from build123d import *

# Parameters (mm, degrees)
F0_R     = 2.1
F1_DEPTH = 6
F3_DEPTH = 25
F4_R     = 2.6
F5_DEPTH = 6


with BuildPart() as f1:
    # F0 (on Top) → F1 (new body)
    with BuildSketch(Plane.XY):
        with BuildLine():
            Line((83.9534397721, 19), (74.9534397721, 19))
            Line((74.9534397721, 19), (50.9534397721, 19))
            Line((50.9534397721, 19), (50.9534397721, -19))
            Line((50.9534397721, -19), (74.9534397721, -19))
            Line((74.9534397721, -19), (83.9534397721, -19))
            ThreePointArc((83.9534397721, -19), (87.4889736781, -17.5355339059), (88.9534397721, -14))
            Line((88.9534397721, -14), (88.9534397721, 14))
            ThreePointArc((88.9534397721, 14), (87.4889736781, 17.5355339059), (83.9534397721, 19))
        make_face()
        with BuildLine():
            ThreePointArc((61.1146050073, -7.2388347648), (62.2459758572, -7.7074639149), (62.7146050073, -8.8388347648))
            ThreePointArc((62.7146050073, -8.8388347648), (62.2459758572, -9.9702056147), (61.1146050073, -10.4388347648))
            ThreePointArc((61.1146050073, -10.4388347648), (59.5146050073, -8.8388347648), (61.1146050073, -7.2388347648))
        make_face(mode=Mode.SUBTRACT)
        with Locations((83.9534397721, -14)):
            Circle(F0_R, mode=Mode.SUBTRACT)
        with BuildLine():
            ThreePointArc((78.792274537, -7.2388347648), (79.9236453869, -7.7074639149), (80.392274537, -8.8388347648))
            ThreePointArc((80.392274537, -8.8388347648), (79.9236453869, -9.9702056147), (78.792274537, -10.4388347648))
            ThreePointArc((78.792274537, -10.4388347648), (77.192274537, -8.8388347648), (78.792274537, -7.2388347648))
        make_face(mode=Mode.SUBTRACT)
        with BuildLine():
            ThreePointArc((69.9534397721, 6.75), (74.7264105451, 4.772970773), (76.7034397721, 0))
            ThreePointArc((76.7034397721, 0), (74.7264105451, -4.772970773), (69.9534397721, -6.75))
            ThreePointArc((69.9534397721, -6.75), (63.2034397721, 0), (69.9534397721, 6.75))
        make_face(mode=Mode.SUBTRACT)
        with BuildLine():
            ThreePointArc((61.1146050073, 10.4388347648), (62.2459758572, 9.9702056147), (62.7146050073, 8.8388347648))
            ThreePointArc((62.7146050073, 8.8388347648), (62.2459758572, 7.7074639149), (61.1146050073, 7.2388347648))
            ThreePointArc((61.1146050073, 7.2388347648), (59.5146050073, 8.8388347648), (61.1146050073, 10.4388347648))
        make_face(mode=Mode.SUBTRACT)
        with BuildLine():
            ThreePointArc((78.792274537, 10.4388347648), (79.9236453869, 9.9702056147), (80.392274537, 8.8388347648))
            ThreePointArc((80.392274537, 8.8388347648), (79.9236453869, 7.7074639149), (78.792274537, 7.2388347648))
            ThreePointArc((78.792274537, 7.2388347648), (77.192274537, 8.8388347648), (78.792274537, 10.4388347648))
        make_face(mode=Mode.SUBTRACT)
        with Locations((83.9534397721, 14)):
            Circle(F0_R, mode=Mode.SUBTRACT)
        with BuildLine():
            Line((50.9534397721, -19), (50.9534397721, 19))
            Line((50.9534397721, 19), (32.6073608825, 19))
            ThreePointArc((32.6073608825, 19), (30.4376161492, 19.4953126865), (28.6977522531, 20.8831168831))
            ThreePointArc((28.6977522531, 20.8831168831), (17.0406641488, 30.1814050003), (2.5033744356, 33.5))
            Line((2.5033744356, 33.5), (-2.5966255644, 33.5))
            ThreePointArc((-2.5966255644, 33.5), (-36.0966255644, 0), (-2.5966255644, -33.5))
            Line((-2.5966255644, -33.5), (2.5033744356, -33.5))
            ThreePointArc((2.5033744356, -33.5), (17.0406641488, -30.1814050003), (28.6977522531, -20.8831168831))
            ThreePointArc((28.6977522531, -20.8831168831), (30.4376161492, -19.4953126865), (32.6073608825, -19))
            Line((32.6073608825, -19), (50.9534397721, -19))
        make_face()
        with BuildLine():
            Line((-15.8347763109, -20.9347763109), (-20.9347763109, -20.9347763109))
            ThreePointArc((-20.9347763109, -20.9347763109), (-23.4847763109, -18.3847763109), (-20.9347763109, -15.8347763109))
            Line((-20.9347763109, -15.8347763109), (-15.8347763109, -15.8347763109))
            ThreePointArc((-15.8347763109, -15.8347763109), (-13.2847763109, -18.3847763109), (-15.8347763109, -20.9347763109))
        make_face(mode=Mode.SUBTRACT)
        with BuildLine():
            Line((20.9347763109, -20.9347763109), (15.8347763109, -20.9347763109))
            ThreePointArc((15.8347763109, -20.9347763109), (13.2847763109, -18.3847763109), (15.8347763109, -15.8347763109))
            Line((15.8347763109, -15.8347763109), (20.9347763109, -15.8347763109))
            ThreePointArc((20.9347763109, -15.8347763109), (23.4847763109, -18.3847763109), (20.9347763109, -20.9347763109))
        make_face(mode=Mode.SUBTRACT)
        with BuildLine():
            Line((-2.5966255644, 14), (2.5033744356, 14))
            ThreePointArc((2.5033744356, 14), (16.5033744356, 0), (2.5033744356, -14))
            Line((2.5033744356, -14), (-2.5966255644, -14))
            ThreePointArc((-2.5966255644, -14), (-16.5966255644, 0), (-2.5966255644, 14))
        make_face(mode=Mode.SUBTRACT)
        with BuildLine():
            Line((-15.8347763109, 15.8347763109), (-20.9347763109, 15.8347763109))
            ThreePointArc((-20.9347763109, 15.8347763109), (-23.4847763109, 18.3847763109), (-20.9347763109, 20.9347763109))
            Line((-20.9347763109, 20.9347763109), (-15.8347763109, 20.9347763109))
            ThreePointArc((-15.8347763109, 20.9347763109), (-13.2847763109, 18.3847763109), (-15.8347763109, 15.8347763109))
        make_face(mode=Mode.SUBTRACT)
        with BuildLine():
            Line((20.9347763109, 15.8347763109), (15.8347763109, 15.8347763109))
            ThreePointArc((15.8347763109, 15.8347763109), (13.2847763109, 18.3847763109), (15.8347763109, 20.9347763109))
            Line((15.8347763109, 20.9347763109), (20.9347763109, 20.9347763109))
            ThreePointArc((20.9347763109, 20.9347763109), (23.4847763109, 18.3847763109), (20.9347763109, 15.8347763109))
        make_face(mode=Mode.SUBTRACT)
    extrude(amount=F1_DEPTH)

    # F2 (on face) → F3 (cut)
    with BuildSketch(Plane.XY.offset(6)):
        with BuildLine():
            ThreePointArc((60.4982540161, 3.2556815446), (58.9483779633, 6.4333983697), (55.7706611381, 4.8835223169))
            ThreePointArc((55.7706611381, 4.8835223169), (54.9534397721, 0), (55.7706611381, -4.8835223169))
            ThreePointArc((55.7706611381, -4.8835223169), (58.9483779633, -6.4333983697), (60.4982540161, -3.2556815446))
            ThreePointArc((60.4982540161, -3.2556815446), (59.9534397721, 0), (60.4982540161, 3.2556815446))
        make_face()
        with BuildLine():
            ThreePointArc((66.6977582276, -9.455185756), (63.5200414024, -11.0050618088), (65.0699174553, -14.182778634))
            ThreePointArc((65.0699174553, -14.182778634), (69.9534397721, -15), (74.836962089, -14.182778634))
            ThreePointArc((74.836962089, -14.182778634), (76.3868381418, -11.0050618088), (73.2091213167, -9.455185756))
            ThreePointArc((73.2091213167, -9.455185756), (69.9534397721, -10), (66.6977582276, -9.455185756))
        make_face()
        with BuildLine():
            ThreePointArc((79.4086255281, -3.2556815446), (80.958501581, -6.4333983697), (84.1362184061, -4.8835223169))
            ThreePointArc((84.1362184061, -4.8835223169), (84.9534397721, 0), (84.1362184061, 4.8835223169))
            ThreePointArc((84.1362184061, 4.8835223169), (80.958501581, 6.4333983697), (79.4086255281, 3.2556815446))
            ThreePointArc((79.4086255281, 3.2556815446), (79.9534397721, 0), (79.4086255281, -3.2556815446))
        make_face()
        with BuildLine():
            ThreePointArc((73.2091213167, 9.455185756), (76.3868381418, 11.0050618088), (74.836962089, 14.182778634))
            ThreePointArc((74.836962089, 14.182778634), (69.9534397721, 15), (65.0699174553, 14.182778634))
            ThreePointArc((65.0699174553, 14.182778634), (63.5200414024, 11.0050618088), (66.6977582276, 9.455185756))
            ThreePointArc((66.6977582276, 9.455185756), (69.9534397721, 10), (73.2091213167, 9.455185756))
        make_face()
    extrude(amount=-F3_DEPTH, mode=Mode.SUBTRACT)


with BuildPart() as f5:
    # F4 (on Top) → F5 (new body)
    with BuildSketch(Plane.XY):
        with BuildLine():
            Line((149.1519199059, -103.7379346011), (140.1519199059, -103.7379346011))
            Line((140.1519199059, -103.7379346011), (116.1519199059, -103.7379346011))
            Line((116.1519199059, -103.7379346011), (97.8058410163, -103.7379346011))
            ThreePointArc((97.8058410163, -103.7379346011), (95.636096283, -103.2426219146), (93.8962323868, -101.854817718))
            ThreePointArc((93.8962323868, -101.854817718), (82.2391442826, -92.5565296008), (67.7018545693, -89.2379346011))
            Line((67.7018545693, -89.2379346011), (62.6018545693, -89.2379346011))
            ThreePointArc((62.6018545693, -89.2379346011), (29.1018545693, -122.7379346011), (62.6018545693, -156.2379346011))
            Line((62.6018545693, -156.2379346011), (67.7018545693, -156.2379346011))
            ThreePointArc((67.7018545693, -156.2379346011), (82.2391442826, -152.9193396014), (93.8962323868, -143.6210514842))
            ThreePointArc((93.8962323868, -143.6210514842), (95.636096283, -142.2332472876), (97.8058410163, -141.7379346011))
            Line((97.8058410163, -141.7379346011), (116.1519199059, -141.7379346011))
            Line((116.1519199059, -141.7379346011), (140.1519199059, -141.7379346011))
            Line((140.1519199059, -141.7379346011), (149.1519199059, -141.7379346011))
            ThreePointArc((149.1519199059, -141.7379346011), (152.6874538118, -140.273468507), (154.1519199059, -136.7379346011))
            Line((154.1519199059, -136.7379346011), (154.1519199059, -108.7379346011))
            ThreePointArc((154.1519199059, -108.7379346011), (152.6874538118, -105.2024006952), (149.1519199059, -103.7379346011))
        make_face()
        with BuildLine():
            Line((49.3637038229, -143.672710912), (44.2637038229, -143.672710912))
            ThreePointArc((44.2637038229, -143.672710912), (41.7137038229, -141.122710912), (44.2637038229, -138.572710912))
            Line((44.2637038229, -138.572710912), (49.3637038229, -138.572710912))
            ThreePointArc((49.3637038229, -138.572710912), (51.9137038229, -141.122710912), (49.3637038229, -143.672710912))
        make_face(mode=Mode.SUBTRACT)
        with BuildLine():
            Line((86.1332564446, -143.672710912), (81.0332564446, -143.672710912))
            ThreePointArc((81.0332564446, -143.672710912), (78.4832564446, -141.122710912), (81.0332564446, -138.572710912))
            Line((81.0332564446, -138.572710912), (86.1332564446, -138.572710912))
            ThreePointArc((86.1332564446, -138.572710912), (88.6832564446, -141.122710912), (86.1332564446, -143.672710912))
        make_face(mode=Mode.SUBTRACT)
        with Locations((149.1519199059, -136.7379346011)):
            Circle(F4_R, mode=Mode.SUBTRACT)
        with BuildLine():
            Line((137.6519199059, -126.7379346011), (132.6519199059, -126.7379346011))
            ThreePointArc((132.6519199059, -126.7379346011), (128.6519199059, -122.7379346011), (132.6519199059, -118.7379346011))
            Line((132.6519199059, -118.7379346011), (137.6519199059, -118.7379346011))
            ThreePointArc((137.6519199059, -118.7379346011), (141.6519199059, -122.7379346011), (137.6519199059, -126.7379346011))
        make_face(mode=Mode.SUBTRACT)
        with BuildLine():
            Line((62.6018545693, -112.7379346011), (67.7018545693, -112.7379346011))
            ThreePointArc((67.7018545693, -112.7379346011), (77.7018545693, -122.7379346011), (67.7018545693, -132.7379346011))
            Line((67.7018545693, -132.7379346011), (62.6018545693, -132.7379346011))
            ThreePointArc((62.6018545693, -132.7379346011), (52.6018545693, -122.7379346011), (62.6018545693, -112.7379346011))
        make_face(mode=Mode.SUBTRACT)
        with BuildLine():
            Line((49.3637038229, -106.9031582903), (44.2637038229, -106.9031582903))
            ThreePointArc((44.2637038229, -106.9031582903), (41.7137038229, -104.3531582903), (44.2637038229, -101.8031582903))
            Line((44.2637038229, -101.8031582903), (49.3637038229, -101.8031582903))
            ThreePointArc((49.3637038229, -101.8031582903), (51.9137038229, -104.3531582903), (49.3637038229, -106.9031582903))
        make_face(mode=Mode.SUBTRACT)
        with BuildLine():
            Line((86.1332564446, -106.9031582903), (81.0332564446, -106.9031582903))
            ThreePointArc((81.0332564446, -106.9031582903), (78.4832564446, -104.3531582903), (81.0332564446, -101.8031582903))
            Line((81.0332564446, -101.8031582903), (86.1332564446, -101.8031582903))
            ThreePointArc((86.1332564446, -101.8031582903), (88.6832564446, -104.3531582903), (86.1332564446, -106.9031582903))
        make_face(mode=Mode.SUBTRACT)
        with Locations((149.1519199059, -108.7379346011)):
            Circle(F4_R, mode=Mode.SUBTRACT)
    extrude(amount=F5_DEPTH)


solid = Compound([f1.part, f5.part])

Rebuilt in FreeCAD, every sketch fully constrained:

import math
import FreeCAD as App
import Part
import Sketcher

V = App.Vector
Q = App.Units.Quantity

doc = App.newDocument("Part")
body = doc.addObject("PartDesign::Body", "Body")

# Sketch on XY plane
sketch1 = body.newObject("Sketcher::SketchObject", "Sketch")
sketch1.AttachmentSupport = (doc.getObject("XY_Plane"), [""])
sketch1.MapMode = "FlatFace"
sketch1.addGeometry(Part.LineSegment(V(84, 19, 0), V(32.6, 19, 0)), False)
sketch1.addGeometry(Part.ArcOfCircle(Part.Circle(V(32.6, 24, 0), V(0, 0, 1), 5), math.radians(-141), math.radians(-90)), False)
sketch1.addGeometry(Part.ArcOfCircle(Part.Circle(V(2.5, 0, 0), V(0, 0, 1), 33.5), math.radians(39), math.radians(90)), False)
sketch1.addGeometry(Part.LineSegment(V(2.5, 33.5, 0), V(-2.6, 33.5, 0)), False)
sketch1.addGeometry(Part.ArcOfCircle(Part.Circle(V(-2.6, 0, 0), V(0, 0, 1), 33.5), math.radians(90), math.radians(270)), False)
sketch1.addGeometry(Part.LineSegment(V(-2.6, -33.5, 0), V(2.5, -33.5, 0)), False)
sketch1.addGeometry(Part.ArcOfCircle(Part.Circle(V(2.5, 0, 0), V(0, 0, 1), 33.5), math.radians(-90), math.radians(-39)), False)
sketch1.addGeometry(Part.ArcOfCircle(Part.Circle(V(32.6, -24, 0), V(0, 0, 1), 5), math.radians(90), math.radians(141)), False)
sketch1.addGeometry(Part.LineSegment(V(32.6, -19, 0), V(84, -19, 0)), False)
sketch1.addGeometry(Part.ArcOfCircle(Part.Circle(V(84, -14, 0), V(0, 0, 1), 5), math.radians(-90), math.radians(0)), False)
sketch1.addGeometry(Part.LineSegment(V(89, -14, 0), V(89, 14, 0)), False)
sketch1.addGeometry(Part.ArcOfCircle(Part.Circle(V(84, 14, 0), V(0, 0, 1), 5), math.radians(0), math.radians(90)), False)
sketch1.addGeometry(Part.ArcOfCircle(Part.Circle(V(-15.8, -18.4, 0), V(0, 0, 1), 2.5), math.radians(-90), math.radians(90)), False)
sketch1.addGeometry(Part.LineSegment(V(-15.8, -20.9, 0), V(-20.9, -20.9, 0)), False)
sketch1.addGeometry(Part.ArcOfCircle(Part.Circle(V(-20.9, -18.4, 0), V(0, 0, 1), 2.5), math.radians(90), math.radians(270)), False)
sketch1.addGeometry(Part.LineSegment(V(-20.9, -15.8, 0), V(-15.8, -15.8, 0)), False)
sketch1.addGeometry(Part.ArcOfCircle(Part.Circle(V(20.9, -18.4, 0), V(0, 0, 1), 2.5), math.radians(-90), math.radians(90)), False)
sketch1.addGeometry(Part.LineSegment(V(20.9, -20.9, 0), V(15.8, -20.9, 0)), False)
sketch1.addGeometry(Part.ArcOfCircle(Part.Circle(V(15.8, -18.4, 0), V(0, 0, 1), 2.5), math.radians(90), math.radians(270)), False)
sketch1.addGeometry(Part.LineSegment(V(15.8, -15.8, 0), V(20.9, -15.8, 0)), False)
sketch1.addGeometry(Part.Circle(V(84, -14, 0), V(0, 0, 1), 2.1), False)
sketch1.addGeometry(Part.ArcOfCircle(Part.Circle(V(61.1, -8.8, 0), V(0, 0, 1), 1.6), math.radians(90), math.radians(270)), False)
sketch1.addGeometry(Part.ArcOfCircle(Part.Circle(V(61.1, -8.8, 0), V(0, 0, 1), 1.6), math.radians(0), math.radians(90)), False)
sketch1.addGeometry(Part.ArcOfCircle(Part.Circle(V(61.1, -8.8, 0), V(0, 0, 1), 1.6), math.radians(-90), math.radians(0)), False)
sketch1.addGeometry(Part.ArcOfCircle(Part.Circle(V(78.8, -8.8, 0), V(0, 0, 1), 1.6), math.radians(90), math.radians(270)), False)
sketch1.addGeometry(Part.ArcOfCircle(Part.Circle(V(78.8, -8.8, 0), V(0, 0, 1), 1.6), math.radians(0), math.radians(90)), False)
sketch1.addGeometry(Part.ArcOfCircle(Part.Circle(V(78.8, -8.8, 0), V(0, 0, 1), 1.6), math.radians(-90), math.radians(0)), False)
sketch1.addGeometry(Part.ArcOfCircle(Part.Circle(V(-2.6, 0, 0), V(0, 0, 1), 14), math.radians(90), math.radians(270)), False)
sketch1.addGeometry(Part.LineSegment(V(-2.6, 14, 0), V(2.5, 14, 0)), False)
sketch1.addGeometry(Part.ArcOfCircle(Part.Circle(V(2.5, 0, 0), V(0, 0, 1), 14), math.radians(-90), math.radians(90)), False)
sketch1.addGeometry(Part.LineSegment(V(2.5, -14, 0), V(-2.6, -14, 0)), False)
sketch1.addGeometry(Part.ArcOfCircle(Part.Circle(V(-15.8, 18.4, 0), V(0, 0, 1), 2.5), math.radians(-90), math.radians(90)), False)
sketch1.addGeometry(Part.LineSegment(V(-15.8, 15.8, 0), V(-20.9, 15.8, 0)), False)
sketch1.addGeometry(Part.ArcOfCircle(Part.Circle(V(-20.9, 18.4, 0), V(0, 0, 1), 2.5), math.radians(90), math.radians(270)), False)
sketch1.addGeometry(Part.LineSegment(V(-20.9, 20.9, 0), V(-15.8, 20.9, 0)), False)
sketch1.addGeometry(Part.ArcOfCircle(Part.Circle(V(20.9, 18.4, 0), V(0, 0, 1), 2.5), math.radians(-90), math.radians(90)), False)
sketch1.addGeometry(Part.LineSegment(V(20.9, 15.8, 0), V(15.8, 15.8, 0)), False)
sketch1.addGeometry(Part.ArcOfCircle(Part.Circle(V(15.8, 18.4, 0), V(0, 0, 1), 2.5), math.radians(90), math.radians(270)), False)
sketch1.addGeometry(Part.LineSegment(V(15.8, 20.9, 0), V(20.9, 20.9, 0)), False)
sketch1.addGeometry(Part.ArcOfCircle(Part.Circle(V(70, 0, 0), V(0, 0, 1), 6.8), math.radians(90), math.radians(270)), False)
sketch1.addGeometry(Part.ArcOfCircle(Part.Circle(V(70, 0, 0), V(0, 0, 1), 6.8), math.radians(0), math.radians(90)), False)
sketch1.addGeometry(Part.ArcOfCircle(Part.Circle(V(70, 0, 0), V(0, 0, 1), 6.8), math.radians(-90), math.radians(0)), False)
sketch1.addGeometry(Part.ArcOfCircle(Part.Circle(V(61.1, 8.8, 0), V(0, 0, 1), 1.6), math.radians(90), math.radians(270)), False)
sketch1.addGeometry(Part.ArcOfCircle(Part.Circle(V(61.1, 8.8, 0), V(0, 0, 1), 1.6), math.radians(0), math.radians(90)), False)
sketch1.addGeometry(Part.ArcOfCircle(Part.Circle(V(61.1, 8.8, 0), V(0, 0, 1), 1.6), math.radians(-90), math.radians(0)), False)
sketch1.addGeometry(Part.ArcOfCircle(Part.Circle(V(78.8, 8.8, 0), V(0, 0, 1), 1.6), math.radians(90), math.radians(270)), False)
sketch1.addGeometry(Part.ArcOfCircle(Part.Circle(V(78.8, 8.8, 0), V(0, 0, 1), 1.6), math.radians(0), math.radians(90)), False)
sketch1.addGeometry(Part.ArcOfCircle(Part.Circle(V(78.8, 8.8, 0), V(0, 0, 1), 1.6), math.radians(-90), math.radians(0)), False)
sketch1.addGeometry(Part.Circle(V(84, 14, 0), V(0, 0, 1), 2.1), False)
sketch1.addConstraint(Sketcher.Constraint("Tangent", 0, 2, 1, 2))
sketch1.addConstraint(Sketcher.Constraint("Tangent", 1, 1, 2, 1))
sketch1.addConstraint(Sketcher.Constraint("Tangent", 2, 2, 3, 1))
sketch1.addConstraint(Sketcher.Constraint("Tangent", 3, 2, 4, 1))
sketch1.addConstraint(Sketcher.Constraint("Tangent", 4, 2, 5, 1))
sketch1.addConstraint(Sketcher.Constraint("Tangent", 5, 2, 6, 1))
sketch1.addConstraint(Sketcher.Constraint("Tangent", 6, 2, 7, 2))
sketch1.addConstraint(Sketcher.Constraint("Tangent", 7, 1, 8, 1))
sketch1.addConstraint(Sketcher.Constraint("Tangent", 8, 2, 9, 1))
sketch1.addConstraint(Sketcher.Constraint("Tangent", 9, 2, 10, 1))
sketch1.addConstraint(Sketcher.Constraint("Tangent", 10, 2, 11, 1))
sketch1.addConstraint(Sketcher.Constraint("Tangent", 11, 2, 0, 1))
sketch1.addConstraint(Sketcher.Constraint("Tangent", 12, 1, 13, 1))
sketch1.addConstraint(Sketcher.Constraint("Tangent", 13, 2, 14, 2))
sketch1.addConstraint(Sketcher.Constraint("Tangent", 14, 1, 15, 1))
sketch1.addConstraint(Sketcher.Constraint("Tangent", 15, 2, 12, 2))
sketch1.addConstraint(Sketcher.Constraint("Tangent", 16, 1, 17, 1))
sketch1.addConstraint(Sketcher.Constraint("Tangent", 17, 2, 18, 2))
sketch1.addConstraint(Sketcher.Constraint("Tangent", 18, 1, 19, 1))
sketch1.addConstraint(Sketcher.Constraint("Tangent", 19, 2, 16, 2))
sketch1.addConstraint(Sketcher.Constraint("Tangent", 21, 1, 22, 2))
sketch1.addConstraint(Sketcher.Constraint("Tangent", 22, 1, 23, 2))
sketch1.addConstraint(Sketcher.Constraint("Tangent", 23, 1, 21, 2))
sketch1.addConstraint(Sketcher.Constraint("Tangent", 24, 1, 25, 2))
sketch1.addConstraint(Sketcher.Constraint("Tangent", 25, 1, 26, 2))
sketch1.addConstraint(Sketcher.Constraint("Tangent", 26, 1, 24, 2))
sketch1.addConstraint(Sketcher.Constraint("Tangent", 27, 1, 28, 1))
sketch1.addConstraint(Sketcher.Constraint("Tangent", 28, 2, 29, 2))
sketch1.addConstraint(Sketcher.Constraint("Tangent", 29, 1, 30, 1))
sketch1.addConstraint(Sketcher.Constraint("Tangent", 30, 2, 27, 2))
sketch1.addConstraint(Sketcher.Constraint("Tangent", 31, 1, 32, 1))
sketch1.addConstraint(Sketcher.Constraint("Tangent", 32, 2, 33, 2))
sketch1.addConstraint(Sketcher.Constraint("Tangent", 33, 1, 34, 1))
sketch1.addConstraint(Sketcher.Constraint("Tangent", 34, 2, 31, 2))
sketch1.addConstraint(Sketcher.Constraint("Tangent", 35, 1, 36, 1))
sketch1.addConstraint(Sketcher.Constraint("Tangent", 36, 2, 37, 2))
sketch1.addConstraint(Sketcher.Constraint("Tangent", 37, 1, 38, 1))
sketch1.addConstraint(Sketcher.Constraint("Tangent", 38, 2, 35, 2))
sketch1.addConstraint(Sketcher.Constraint("Tangent", 39, 1, 40, 2))
sketch1.addConstraint(Sketcher.Constraint("Tangent", 40, 1, 41, 2))
sketch1.addConstraint(Sketcher.Constraint("Tangent", 41, 1, 39, 2))
sketch1.addConstraint(Sketcher.Constraint("Tangent", 42, 1, 43, 2))
sketch1.addConstraint(Sketcher.Constraint("Tangent", 43, 1, 44, 2))
sketch1.addConstraint(Sketcher.Constraint("Tangent", 44, 1, 42, 2))
sketch1.addConstraint(Sketcher.Constraint("Tangent", 45, 1, 46, 2))
sketch1.addConstraint(Sketcher.Constraint("Tangent", 46, 1, 47, 2))
sketch1.addConstraint(Sketcher.Constraint("Tangent", 47, 1, 45, 2))
sketch1.addConstraint(Sketcher.Constraint("Horizontal", 0))
sketch1.addConstraint(Sketcher.Constraint("Horizontal", 3))
sketch1.addConstraint(Sketcher.Constraint("Horizontal", 5))
sketch1.addConstraint(Sketcher.Constraint("Horizontal", 8))
sketch1.addConstraint(Sketcher.Constraint("Vertical", 10))
sketch1.addConstraint(Sketcher.Constraint("Horizontal", 13))
sketch1.addConstraint(Sketcher.Constraint("Horizontal", 15))
sketch1.addConstraint(Sketcher.Constraint("Horizontal", 17))
sketch1.addConstraint(Sketcher.Constraint("Horizontal", 19))
sketch1.addConstraint(Sketcher.Constraint("Horizontal", 28))
sketch1.addConstraint(Sketcher.Constraint("Horizontal", 30))
sketch1.addConstraint(Sketcher.Constraint("Horizontal", 32))
sketch1.addConstraint(Sketcher.Constraint("Horizontal", 34))
sketch1.addConstraint(Sketcher.Constraint("Horizontal", 36))
sketch1.addConstraint(Sketcher.Constraint("Horizontal", 38))
sketch1.addConstraint(Sketcher.Constraint("Coincident", 6, 3, 2, 3))
sketch1.addConstraint(Sketcher.Constraint("Coincident", 20, 3, 9, 3))
sketch1.addConstraint(Sketcher.Constraint("Coincident", 27, 3, 4, 3))
sketch1.addConstraint(Sketcher.Constraint("Coincident", 29, 3, 2, 3))
sketch1.addConstraint(Sketcher.Constraint("Coincident", 48, 3, 11, 3))
sketch1.addConstraint(Sketcher.Constraint("Equal", 1, 7))
sketch1.addConstraint(Sketcher.Constraint("Equal", 7, 9))
sketch1.addConstraint(Sketcher.Constraint("Equal", 9, 11))
sketch1.addConstraint(Sketcher.Constraint("Equal", 14, 16))
sketch1.addConstraint(Sketcher.Constraint("Equal", 23, 24))
sketch1.addConstraint(Sketcher.Constraint("Equal", 18, 31))
sketch1.addConstraint(Sketcher.Constraint("Equal", 33, 35))
sketch1.addConstraint(Sketcher.Constraint("Equal", 26, 42))
sketch1.addConstraint(Sketcher.Constraint("Equal", 44, 45))
sketch1.addConstraint(Sketcher.Constraint("Equal", 20, 48))
sketch1.addConstraint(Sketcher.Constraint("Symmetric", 18, 3, 31, 3, -1, 1))
sketch1.addConstraint(Sketcher.Constraint("Symmetric", 14, 3, 35, 3, -1, 1))
sketch1.addConstraint(Sketcher.Constraint("Symmetric", 14, 3, 16, 3, -2))
sketch1.addConstraint(Sketcher.Constraint("Symmetric", 1, 3, 7, 3, -1))
sketch1.addConstraint(Sketcher.Constraint("Symmetric", 21, 3, 42, 3, -1))
sketch1.addConstraint(Sketcher.Constraint("Symmetric", 24, 3, 45, 3, -1))
sketch1.addConstraint(Sketcher.Constraint("Symmetric", 39, 1, 41, 1, -1))
sketch1.addConstraint(Sketcher.Constraint("PointOnObject", 40, 1, -1))
sketch1.addConstraint(Sketcher.Constraint("Horizontal", 23, 3, 24, 3))
sketch1.addConstraint(Sketcher.Constraint("Horizontal", 26, 3, 22, 1))
sketch1.addConstraint(Sketcher.Constraint("Horizontal", 22, 1, 25, 1))
sketch1.addConstraint(Sketcher.Constraint("Horizontal", 10, 2, 27, 1))
sketch1.addConstraint(Sketcher.Constraint("Horizontal", 47, 3, 43, 1))
sketch1.addConstraint(Sketcher.Constraint("Horizontal", 43, 1, 46, 1))
sketch1.addConstraint(Sketcher.Constraint("Vertical", 12, 3, 31, 3))
sketch1.addConstraint(Sketcher.Constraint("Vertical", 14, 3, 33, 3))
sketch1.addConstraint(Sketcher.Constraint("Vertical", 18, 3, 37, 3))
sketch1.addConstraint(Sketcher.Constraint("Vertical", 44, 3, 21, 1))
sketch1.addConstraint(Sketcher.Constraint("Vertical", 21, 1, 23, 1))
sketch1.addConstraint(Sketcher.Constraint("Vertical", 47, 3, 24, 1))
sketch1.addConstraint(Sketcher.Constraint("Vertical", 24, 1, 26, 1))
sketch1.addConstraint(Sketcher.Constraint("Vertical", 41, 3, 39, 1))
sketch1.addConstraint(Sketcher.Constraint("Vertical", 23, 1, 42, 1))
sketch1.addConstraint(Sketcher.Constraint("Vertical", 42, 1, 44, 1))
sketch1.addConstraint(Sketcher.Constraint("Vertical", 26, 1, 45, 1))
sketch1.addConstraint(Sketcher.Constraint("Vertical", 45, 1, 47, 1))
sketch1.addConstraint(Sketcher.Constraint("Equal", 5, 13))
sketch1.addConstraint(Sketcher.Constraint("Radius", 1, Q("5 mm")))
sketch1.addConstraint(Sketcher.Constraint("Radius", 27, Q("14 mm")))
sketch1.addConstraint(Sketcher.Constraint("Diameter", 20, Q("4.2 mm")))
sketch1.addConstraint(Sketcher.Constraint("Radius", 2, Q("33.5 mm")))
sketch1.addConstraint(Sketcher.Constraint("Radius", 21, Q("1.6 mm")))
sketch1.addConstraint(Sketcher.Constraint("Radius", 12, Q("2.55 mm")))
sketch1.addConstraint(Sketcher.Constraint("Radius", 39, Q("6.75 mm")))
sketch1.addConstraint(Sketcher.Constraint("DistanceX", 3, 2, 3, 1, Q("5.1 mm")))
sketch1.addConstraint(Sketcher.Constraint("DistanceX", 0, 2, 0, 1, Q("51.346079 mm")))
sketch1.addConstraint(Sketcher.Constraint("DistanceX", -1, 1, 1, 3, Q("32.607361 mm")))
sketch1.addConstraint(Sketcher.Constraint("DistanceX", -1, 1, 39, 3, Q("69.95344 mm")))
sketch1.addConstraint(Sketcher.Constraint("DistanceX", 12, 3, -1, 1, Q("15.834776 mm")))
sketch1.addConstraint(Sketcher.Constraint("DistanceY", 12, 3, -1, 1, Q("18.384776 mm")))
sketch1.addConstraint(Sketcher.Constraint("DistanceX", -1, 1, 21, 3, Q("61.114605 mm")))
sketch1.addConstraint(Sketcher.Constraint("DistanceY", 21, 3, -1, 1, Q("8.838835 mm")))
sketch1.addConstraint(Sketcher.Constraint("DistanceX", -1, 1, 24, 3, Q("78.792275 mm")))
pad1 = body.newObject("PartDesign::Pad", "Pad")
pad1.Profile = sketch1
pad1.Length = 6

# Sketch on XY plane
sketch2 = body.newObject("Sketcher::SketchObject", "Sketch001")
sketch2.AttachmentSupport = (doc.getObject("XY_Plane"), [""])
sketch2.MapMode = "FlatFace"
sketch2.AttachmentOffset = App.Placement(V(0, 0, 6), App.Rotation())
sketch2.addGeometry(Part.ArcOfCircle(Part.Circle(V(58.1, 4.1, 0), V(0, 0, 1), 2.5), math.radians(-19), math.radians(161)), False)
sketch2.addGeometry(Part.ArcOfCircle(Part.Circle(V(70, 0, 0), V(0, 0, 1), 15), math.radians(161), math.radians(199)), False)
sketch2.addGeometry(Part.ArcOfCircle(Part.Circle(V(58.1, -4.1, 0), V(0, 0, 1), 2.5), math.radians(-161), math.radians(19)), False)
sketch2.addGeometry(Part.ArcOfCircle(Part.Circle(V(70, 0, 0), V(0, 0, 1), 10), math.radians(161), math.radians(199)), False)
sketch2.addGeometry(Part.ArcOfCircle(Part.Circle(V(65.9, -11.8, 0), V(0, 0, 1), 2.5), math.radians(71), math.radians(251)), False)
sketch2.addGeometry(Part.ArcOfCircle(Part.Circle(V(70, 0, 0), V(0, 0, 1), 15), math.radians(-109), math.radians(-71)), False)
sketch2.addGeometry(Part.ArcOfCircle(Part.Circle(V(74, -11.8, 0), V(0, 0, 1), 2.5), math.radians(-71), math.radians(109)), False)
sketch2.addGeometry(Part.ArcOfCircle(Part.Circle(V(70, 0, 0), V(0, 0, 1), 10), math.radians(-109), math.radians(-71)), False)
sketch2.addGeometry(Part.ArcOfCircle(Part.Circle(V(81.8, -4.1, 0), V(0, 0, 1), 2.5), math.radians(161), math.radians(341)), False)
sketch2.addGeometry(Part.ArcOfCircle(Part.Circle(V(70, 0, 0), V(0, 0, 1), 15), math.radians(-19), math.radians(19)), False)
sketch2.addGeometry(Part.ArcOfCircle(Part.Circle(V(81.8, 4.1, 0), V(0, 0, 1), 2.5), math.radians(19), math.radians(199)), False)
sketch2.addGeometry(Part.ArcOfCircle(Part.Circle(V(70, 0, 0), V(0, 0, 1), 10), math.radians(-19), math.radians(19)), False)
sketch2.addGeometry(Part.ArcOfCircle(Part.Circle(V(74, 11.8, 0), V(0, 0, 1), 2.5), math.radians(-109), math.radians(71)), False)
sketch2.addGeometry(Part.ArcOfCircle(Part.Circle(V(70, 0, 0), V(0, 0, 1), 15), math.radians(71), math.radians(109)), False)
sketch2.addGeometry(Part.ArcOfCircle(Part.Circle(V(65.9, 11.8, 0), V(0, 0, 1), 2.5), math.radians(109), math.radians(289)), False)
sketch2.addGeometry(Part.ArcOfCircle(Part.Circle(V(70, 0, 0), V(0, 0, 1), 10), math.radians(71), math.radians(109)), False)
sketch2.addConstraint(Sketcher.Constraint("Tangent", 0, 2, 1, 1))
sketch2.addConstraint(Sketcher.Constraint("Tangent", 1, 2, 2, 1))
sketch2.addConstraint(Sketcher.Constraint("Tangent", 2, 2, 3, 2))
sketch2.addConstraint(Sketcher.Constraint("Tangent", 3, 1, 0, 1))
sketch2.addConstraint(Sketcher.Constraint("Tangent", 4, 2, 5, 1))
sketch2.addConstraint(Sketcher.Constraint("Tangent", 5, 2, 6, 1))
sketch2.addConstraint(Sketcher.Constraint("Tangent", 6, 2, 7, 2))
sketch2.addConstraint(Sketcher.Constraint("Tangent", 7, 1, 4, 1))
sketch2.addConstraint(Sketcher.Constraint("Tangent", 8, 2, 9, 1))
sketch2.addConstraint(Sketcher.Constraint("Tangent", 9, 2, 10, 1))
sketch2.addConstraint(Sketcher.Constraint("Tangent", 10, 2, 11, 2))
sketch2.addConstraint(Sketcher.Constraint("Tangent", 11, 1, 8, 1))
sketch2.addConstraint(Sketcher.Constraint("Tangent", 12, 2, 13, 1))
sketch2.addConstraint(Sketcher.Constraint("Tangent", 13, 2, 14, 1))
sketch2.addConstraint(Sketcher.Constraint("Tangent", 14, 2, 15, 2))
sketch2.addConstraint(Sketcher.Constraint("Tangent", 15, 1, 12, 1))
sketch2.addConstraint(Sketcher.Constraint("Coincident", 3, 3, 1, 3))
sketch2.addConstraint(Sketcher.Constraint("Coincident", 5, 3, 1, 3))
sketch2.addConstraint(Sketcher.Constraint("Coincident", 7, 3, 1, 3))
sketch2.addConstraint(Sketcher.Constraint("Coincident", 9, 3, 1, 3))
sketch2.addConstraint(Sketcher.Constraint("Coincident", 11, 3, 1, 3))
sketch2.addConstraint(Sketcher.Constraint("Coincident", 13, 3, 1, 3))
sketch2.addConstraint(Sketcher.Constraint("Coincident", 15, 3, 1, 3))
sketch2.addConstraint(Sketcher.Constraint("Equal", 2, 4))
sketch2.addConstraint(Sketcher.Constraint("Equal", 1, 5))
sketch2.addConstraint(Sketcher.Constraint("Equal", 6, 8))
sketch2.addConstraint(Sketcher.Constraint("Equal", 5, 9))
sketch2.addConstraint(Sketcher.Constraint("Equal", 10, 12))
sketch2.addConstraint(Sketcher.Constraint("Equal", 9, 13))
sketch2.addConstraint(Sketcher.Constraint("Symmetric", 0, 3, 2, 3, -1))
sketch2.addConstraint(Sketcher.Constraint("Horizontal", 4, 3, 6, 3))
sketch2.addConstraint(Sketcher.Constraint("Horizontal", 2, 3, 8, 3))
sketch2.addConstraint(Sketcher.Constraint("Horizontal", 0, 3, 10, 3))
sketch2.addConstraint(Sketcher.Constraint("Horizontal", 12, 3, 14, 3))
sketch2.addConstraint(Sketcher.Constraint("Vertical", 6, 3, 12, 3))
sketch2.addConstraint(Sketcher.Constraint("Radius", 1, Q("15 mm")))
sketch2.addConstraint(Sketcher.Constraint("Radius", 3, Q("10 mm")))
sketch2.addConstraint(Sketcher.Constraint("DistanceY", -1, 1, 0, 3, Q("4.069602 mm")))
sketch2.addConstraint(Sketcher.Constraint("DistanceX", 4, 3, 3, 3, Q("4.069602 mm")))
sketch2.addConstraint(Sketcher.Constraint("DistanceX", -1, 1, 1, 3, Q("69.95344 mm")))
pocket1 = body.newObject("PartDesign::Pocket", "Pocket")
pocket1.Profile = sketch2
pocket1.Length = 25
body2 = doc.addObject("PartDesign::Body", "Body001")

# Sketch on XY plane
sketch3 = body2.newObject("Sketcher::SketchObject", "Sketch002")
sketch3.AttachmentSupport = (doc.getObject("XY_Plane001"), [""])
sketch3.MapMode = "FlatFace"
sketch3.addGeometry(Part.LineSegment(V(149.2, -103.7, 0), V(97.8, -103.7, 0)), False)
sketch3.addGeometry(Part.ArcOfCircle(Part.Circle(V(97.8, -98.7, 0), V(0, 0, 1), 5), math.radians(-141), math.radians(-90)), False)
sketch3.addGeometry(Part.ArcOfCircle(Part.Circle(V(67.7, -122.7, 0), V(0, 0, 1), 33.5), math.radians(39), math.radians(90)), False)
sketch3.addGeometry(Part.LineSegment(V(67.7, -89.2, 0), V(62.6, -89.2, 0)), False)
sketch3.addGeometry(Part.ArcOfCircle(Part.Circle(V(62.6, -122.7, 0), V(0, 0, 1), 33.5), math.radians(90), math.radians(270)), False)
sketch3.addGeometry(Part.LineSegment(V(62.6, -156.2, 0), V(67.7, -156.2, 0)), False)
sketch3.addGeometry(Part.ArcOfCircle(Part.Circle(V(67.7, -122.7, 0), V(0, 0, 1), 33.5), math.radians(-90), math.radians(-39)), False)
sketch3.addGeometry(Part.ArcOfCircle(Part.Circle(V(97.8, -146.7, 0), V(0, 0, 1), 5), math.radians(90), math.radians(141)), False)
sketch3.addGeometry(Part.LineSegment(V(97.8, -141.7, 0), V(149.2, -141.7, 0)), False)
sketch3.addGeometry(Part.ArcOfCircle(Part.Circle(V(149.2, -136.7, 0), V(0, 0, 1), 5), math.radians(-90), math.radians(0)), False)
sketch3.addGeometry(Part.LineSegment(V(154.2, -136.7, 0), V(154.2, -108.7, 0)), False)
sketch3.addGeometry(Part.ArcOfCircle(Part.Circle(V(149.2, -108.7, 0), V(0, 0, 1), 5), math.radians(0), math.radians(90)), False)
sketch3.addGeometry(Part.ArcOfCircle(Part.Circle(V(49.4, -141.1, 0), V(0, 0, 1), 2.5), math.radians(-90), math.radians(90)), False)
sketch3.addGeometry(Part.LineSegment(V(49.4, -143.7, 0), V(44.3, -143.7, 0)), False)
sketch3.addGeometry(Part.ArcOfCircle(Part.Circle(V(44.3, -141.1, 0), V(0, 0, 1), 2.5), math.radians(90), math.radians(270)), False)
sketch3.addGeometry(Part.LineSegment(V(44.3, -138.6, 0), V(49.4, -138.6, 0)), False)
sketch3.addGeometry(Part.ArcOfCircle(Part.Circle(V(86.1, -141.1, 0), V(0, 0, 1), 2.5), math.radians(-90), math.radians(90)), False)
sketch3.addGeometry(Part.LineSegment(V(86.1, -143.7, 0), V(81, -143.7, 0)), False)
sketch3.addGeometry(Part.ArcOfCircle(Part.Circle(V(81, -141.1, 0), V(0, 0, 1), 2.5), math.radians(90), math.radians(270)), False)
sketch3.addGeometry(Part.LineSegment(V(81, -138.6, 0), V(86.1, -138.6, 0)), False)
sketch3.addGeometry(Part.Circle(V(149.2, -136.7, 0), V(0, 0, 1), 2.6), False)
sketch3.addGeometry(Part.ArcOfCircle(Part.Circle(V(62.6, -122.7, 0), V(0, 0, 1), 10), math.radians(90), math.radians(270)), False)
sketch3.addGeometry(Part.LineSegment(V(62.6, -112.7, 0), V(67.7, -112.7, 0)), False)
sketch3.addGeometry(Part.ArcOfCircle(Part.Circle(V(67.7, -122.7, 0), V(0, 0, 1), 10), math.radians(-90), math.radians(90)), False)
sketch3.addGeometry(Part.LineSegment(V(67.7, -132.7, 0), V(62.6, -132.7, 0)), False)
sketch3.addGeometry(Part.ArcOfCircle(Part.Circle(V(49.4, -104.4, 0), V(0, 0, 1), 2.5), math.radians(-90), math.radians(90)), False)
sketch3.addGeometry(Part.LineSegment(V(49.4, -106.9, 0), V(44.3, -106.9, 0)), False)
sketch3.addGeometry(Part.ArcOfCircle(Part.Circle(V(44.3, -104.4, 0), V(0, 0, 1), 2.5), math.radians(90), math.radians(270)), False)
sketch3.addGeometry(Part.LineSegment(V(44.3, -101.8, 0), V(49.4, -101.8, 0)), False)
sketch3.addGeometry(Part.ArcOfCircle(Part.Circle(V(86.1, -104.4, 0), V(0, 0, 1), 2.5), math.radians(-90), math.radians(90)), False)
sketch3.addGeometry(Part.LineSegment(V(86.1, -106.9, 0), V(81, -106.9, 0)), False)
sketch3.addGeometry(Part.ArcOfCircle(Part.Circle(V(81, -104.4, 0), V(0, 0, 1), 2.5), math.radians(90), math.radians(270)), False)
sketch3.addGeometry(Part.LineSegment(V(81, -101.8, 0), V(86.1, -101.8, 0)), False)
sketch3.addGeometry(Part.ArcOfCircle(Part.Circle(V(137.7, -122.7, 0), V(0, 0, 1), 4), math.radians(-90), math.radians(90)), False)
sketch3.addGeometry(Part.LineSegment(V(137.7, -126.7, 0), V(132.7, -126.7, 0)), False)
sketch3.addGeometry(Part.ArcOfCircle(Part.Circle(V(132.7, -122.7, 0), V(0, 0, 1), 4), math.radians(90), math.radians(270)), False)
sketch3.addGeometry(Part.LineSegment(V(132.7, -118.7, 0), V(137.7, -118.7, 0)), False)
sketch3.addGeometry(Part.Circle(V(149.2, -108.7, 0), V(0, 0, 1), 2.6), False)
sketch3.addConstraint(Sketcher.Constraint("Tangent", 0, 2, 1, 2))
sketch3.addConstraint(Sketcher.Constraint("Tangent", 1, 1, 2, 1))
sketch3.addConstraint(Sketcher.Constraint("Tangent", 2, 2, 3, 1))
sketch3.addConstraint(Sketcher.Constraint("Tangent", 3, 2, 4, 1))
sketch3.addConstraint(Sketcher.Constraint("Tangent", 4, 2, 5, 1))
sketch3.addConstraint(Sketcher.Constraint("Tangent", 5, 2, 6, 1))
sketch3.addConstraint(Sketcher.Constraint("Tangent", 6, 2, 7, 2))
sketch3.addConstraint(Sketcher.Constraint("Tangent", 7, 1, 8, 1))
sketch3.addConstraint(Sketcher.Constraint("Tangent", 8, 2, 9, 1))
sketch3.addConstraint(Sketcher.Constraint("Tangent", 9, 2, 10, 1))
sketch3.addConstraint(Sketcher.Constraint("Tangent", 10, 2, 11, 1))
sketch3.addConstraint(Sketcher.Constraint("Tangent", 11, 2, 0, 1))
sketch3.addConstraint(Sketcher.Constraint("Tangent", 12, 1, 13, 1))
sketch3.addConstraint(Sketcher.Constraint("Tangent", 13, 2, 14, 2))
sketch3.addConstraint(Sketcher.Constraint("Tangent", 14, 1, 15, 1))
sketch3.addConstraint(Sketcher.Constraint("Tangent", 15, 2, 12, 2))
sketch3.addConstraint(Sketcher.Constraint("Tangent", 16, 1, 17, 1))
sketch3.addConstraint(Sketcher.Constraint("Tangent", 17, 2, 18, 2))
sketch3.addConstraint(Sketcher.Constraint("Tangent", 18, 1, 19, 1))
sketch3.addConstraint(Sketcher.Constraint("Tangent", 19, 2, 16, 2))
sketch3.addConstraint(Sketcher.Constraint("Tangent", 21, 1, 22, 1))
sketch3.addConstraint(Sketcher.Constraint("Tangent", 22, 2, 23, 2))
sketch3.addConstraint(Sketcher.Constraint("Tangent", 23, 1, 24, 1))
sketch3.addConstraint(Sketcher.Constraint("Tangent", 24, 2, 21, 2))
sketch3.addConstraint(Sketcher.Constraint("Tangent", 25, 1, 26, 1))
sketch3.addConstraint(Sketcher.Constraint("Tangent", 26, 2, 27, 2))
sketch3.addConstraint(Sketcher.Constraint("Tangent", 27, 1, 28, 1))
sketch3.addConstraint(Sketcher.Constraint("Tangent", 28, 2, 25, 2))
sketch3.addConstraint(Sketcher.Constraint("Tangent", 29, 1, 30, 1))
sketch3.addConstraint(Sketcher.Constraint("Tangent", 30, 2, 31, 2))
sketch3.addConstraint(Sketcher.Constraint("Tangent", 31, 1, 32, 1))
sketch3.addConstraint(Sketcher.Constraint("Tangent", 32, 2, 29, 2))
sketch3.addConstraint(Sketcher.Constraint("Tangent", 33, 1, 34, 1))
sketch3.addConstraint(Sketcher.Constraint("Tangent", 34, 2, 35, 2))
sketch3.addConstraint(Sketcher.Constraint("Tangent", 35, 1, 36, 1))
sketch3.addConstraint(Sketcher.Constraint("Tangent", 36, 2, 33, 2))
sketch3.addConstraint(Sketcher.Constraint("Horizontal", 0))
sketch3.addConstraint(Sketcher.Constraint("Horizontal", 3))
sketch3.addConstraint(Sketcher.Constraint("Horizontal", 5))
sketch3.addConstraint(Sketcher.Constraint("Horizontal", 8))
sketch3.addConstraint(Sketcher.Constraint("Vertical", 10))
sketch3.addConstraint(Sketcher.Constraint("Horizontal", 13))
sketch3.addConstraint(Sketcher.Constraint("Horizontal", 15))
sketch3.addConstraint(Sketcher.Constraint("Horizontal", 17))
sketch3.addConstraint(Sketcher.Constraint("Horizontal", 19))
sketch3.addConstraint(Sketcher.Constraint("Horizontal", 22))
sketch3.addConstraint(Sketcher.Constraint("Horizontal", 24))
sketch3.addConstraint(Sketcher.Constraint("Horizontal", 26))
sketch3.addConstraint(Sketcher.Constraint("Horizontal", 28))
sketch3.addConstraint(Sketcher.Constraint("Horizontal", 30))
sketch3.addConstraint(Sketcher.Constraint("Horizontal", 32))
sketch3.addConstraint(Sketcher.Constraint("Horizontal", 34))
sketch3.addConstraint(Sketcher.Constraint("Horizontal", 36))
sketch3.addConstraint(Sketcher.Constraint("Coincident", 6, 3, 2, 3))
sketch3.addConstraint(Sketcher.Constraint("Coincident", 20, 3, 9, 3))
sketch3.addConstraint(Sketcher.Constraint("Coincident", 21, 3, 4, 3))
sketch3.addConstraint(Sketcher.Constraint("Coincident", 23, 3, 2, 3))
sketch3.addConstraint(Sketcher.Constraint("Coincident", 37, 3, 11, 3))
sketch3.addConstraint(Sketcher.Constraint("Equal", 1, 7))
sketch3.addConstraint(Sketcher.Constraint("Equal", 7, 9))
sketch3.addConstraint(Sketcher.Constraint("Equal", 9, 11))
sketch3.addConstraint(Sketcher.Constraint("Equal", 14, 16))
sketch3.addConstraint(Sketcher.Constraint("Equal", 18, 25))
sketch3.addConstraint(Sketcher.Constraint("Equal", 27, 29))
sketch3.addConstraint(Sketcher.Constraint("Equal", 20, 37))
sketch3.addConstraint(Sketcher.Constraint("Horizontal", 14, 3, 16, 3))
sketch3.addConstraint(Sketcher.Constraint("Horizontal", 27, 3, 29, 3))
sketch3.addConstraint(Sketcher.Constraint("Horizontal", 23, 3, 33, 3))
sketch3.addConstraint(Sketcher.Constraint("Vertical", 1, 3, 7, 3))
sketch3.addConstraint(Sketcher.Constraint("Vertical", 12, 3, 25, 3))
sketch3.addConstraint(Sketcher.Constraint("Vertical", 14, 3, 27, 3))
sketch3.addConstraint(Sketcher.Constraint("Vertical", 16, 3, 29, 3))
sketch3.addConstraint(Sketcher.Constraint("Vertical", 18, 3, 31, 3))
sketch3.addConstraint(Sketcher.Constraint("Equal", 5, 13))
sketch3.addConstraint(Sketcher.Constraint("Equal", 15, 17))
sketch3.addConstraint(Sketcher.Constraint("Radius", 1, Q("5 mm")))
sketch3.addConstraint(Sketcher.Constraint("Radius", 21, Q("10 mm")))
sketch3.addConstraint(Sketcher.Constraint("Radius", 33, Q("4 mm")))
sketch3.addConstraint(Sketcher.Constraint("Diameter", 20, Q("5.2 mm")))
sketch3.addConstraint(Sketcher.Constraint("Radius", 2, Q("33.5 mm")))
sketch3.addConstraint(Sketcher.Constraint("DistanceX", 34, 2, 34, 1, Q("5 mm")))
sketch3.addConstraint(Sketcher.Constraint("DistanceY", 10, 1, 10, 2, Q("28 mm")))
sketch3.addConstraint(Sketcher.Constraint("Radius", 12, Q("2.55 mm")))
sketch3.addConstraint(Sketcher.Constraint("DistanceX", 3, 2, 3, 1, Q("5.1 mm")))
sketch3.addConstraint(Sketcher.Constraint("DistanceX", 33, 3, 9, 3, Q("11.5 mm")))
sketch3.addConstraint(Sketcher.Constraint("DistanceX", 0, 2, 0, 1, Q("51.346079 mm")))
sketch3.addConstraint(Sketcher.Constraint("DistanceX", 2, 3, 16, 3, Q("18.431402 mm")))
sketch3.addConstraint(Sketcher.Constraint("DistanceX", -1, 1, 1, 3, Q("97.805841 mm")))
sketch3.addConstraint(Sketcher.Constraint("DistanceY", 12, 3, -1, 1, Q("141.122711 mm")))
sketch3.addConstraint(Sketcher.Constraint("DistanceY", 25, 3, -1, 1, Q("104.353158 mm")))
sketch3.addConstraint(Sketcher.Constraint("DistanceY", 6, 2, -1, 1, Q("143.621051 mm")))
sketch3.addConstraint(Sketcher.Constraint("DistanceX", 12, 3, 4, 3, Q("13.238151 mm")))
pad2 = body2.newObject("PartDesign::Pad", "Pad001")
pad2.Profile = sketch3
pad2.Length = 6

doc.recompute()
